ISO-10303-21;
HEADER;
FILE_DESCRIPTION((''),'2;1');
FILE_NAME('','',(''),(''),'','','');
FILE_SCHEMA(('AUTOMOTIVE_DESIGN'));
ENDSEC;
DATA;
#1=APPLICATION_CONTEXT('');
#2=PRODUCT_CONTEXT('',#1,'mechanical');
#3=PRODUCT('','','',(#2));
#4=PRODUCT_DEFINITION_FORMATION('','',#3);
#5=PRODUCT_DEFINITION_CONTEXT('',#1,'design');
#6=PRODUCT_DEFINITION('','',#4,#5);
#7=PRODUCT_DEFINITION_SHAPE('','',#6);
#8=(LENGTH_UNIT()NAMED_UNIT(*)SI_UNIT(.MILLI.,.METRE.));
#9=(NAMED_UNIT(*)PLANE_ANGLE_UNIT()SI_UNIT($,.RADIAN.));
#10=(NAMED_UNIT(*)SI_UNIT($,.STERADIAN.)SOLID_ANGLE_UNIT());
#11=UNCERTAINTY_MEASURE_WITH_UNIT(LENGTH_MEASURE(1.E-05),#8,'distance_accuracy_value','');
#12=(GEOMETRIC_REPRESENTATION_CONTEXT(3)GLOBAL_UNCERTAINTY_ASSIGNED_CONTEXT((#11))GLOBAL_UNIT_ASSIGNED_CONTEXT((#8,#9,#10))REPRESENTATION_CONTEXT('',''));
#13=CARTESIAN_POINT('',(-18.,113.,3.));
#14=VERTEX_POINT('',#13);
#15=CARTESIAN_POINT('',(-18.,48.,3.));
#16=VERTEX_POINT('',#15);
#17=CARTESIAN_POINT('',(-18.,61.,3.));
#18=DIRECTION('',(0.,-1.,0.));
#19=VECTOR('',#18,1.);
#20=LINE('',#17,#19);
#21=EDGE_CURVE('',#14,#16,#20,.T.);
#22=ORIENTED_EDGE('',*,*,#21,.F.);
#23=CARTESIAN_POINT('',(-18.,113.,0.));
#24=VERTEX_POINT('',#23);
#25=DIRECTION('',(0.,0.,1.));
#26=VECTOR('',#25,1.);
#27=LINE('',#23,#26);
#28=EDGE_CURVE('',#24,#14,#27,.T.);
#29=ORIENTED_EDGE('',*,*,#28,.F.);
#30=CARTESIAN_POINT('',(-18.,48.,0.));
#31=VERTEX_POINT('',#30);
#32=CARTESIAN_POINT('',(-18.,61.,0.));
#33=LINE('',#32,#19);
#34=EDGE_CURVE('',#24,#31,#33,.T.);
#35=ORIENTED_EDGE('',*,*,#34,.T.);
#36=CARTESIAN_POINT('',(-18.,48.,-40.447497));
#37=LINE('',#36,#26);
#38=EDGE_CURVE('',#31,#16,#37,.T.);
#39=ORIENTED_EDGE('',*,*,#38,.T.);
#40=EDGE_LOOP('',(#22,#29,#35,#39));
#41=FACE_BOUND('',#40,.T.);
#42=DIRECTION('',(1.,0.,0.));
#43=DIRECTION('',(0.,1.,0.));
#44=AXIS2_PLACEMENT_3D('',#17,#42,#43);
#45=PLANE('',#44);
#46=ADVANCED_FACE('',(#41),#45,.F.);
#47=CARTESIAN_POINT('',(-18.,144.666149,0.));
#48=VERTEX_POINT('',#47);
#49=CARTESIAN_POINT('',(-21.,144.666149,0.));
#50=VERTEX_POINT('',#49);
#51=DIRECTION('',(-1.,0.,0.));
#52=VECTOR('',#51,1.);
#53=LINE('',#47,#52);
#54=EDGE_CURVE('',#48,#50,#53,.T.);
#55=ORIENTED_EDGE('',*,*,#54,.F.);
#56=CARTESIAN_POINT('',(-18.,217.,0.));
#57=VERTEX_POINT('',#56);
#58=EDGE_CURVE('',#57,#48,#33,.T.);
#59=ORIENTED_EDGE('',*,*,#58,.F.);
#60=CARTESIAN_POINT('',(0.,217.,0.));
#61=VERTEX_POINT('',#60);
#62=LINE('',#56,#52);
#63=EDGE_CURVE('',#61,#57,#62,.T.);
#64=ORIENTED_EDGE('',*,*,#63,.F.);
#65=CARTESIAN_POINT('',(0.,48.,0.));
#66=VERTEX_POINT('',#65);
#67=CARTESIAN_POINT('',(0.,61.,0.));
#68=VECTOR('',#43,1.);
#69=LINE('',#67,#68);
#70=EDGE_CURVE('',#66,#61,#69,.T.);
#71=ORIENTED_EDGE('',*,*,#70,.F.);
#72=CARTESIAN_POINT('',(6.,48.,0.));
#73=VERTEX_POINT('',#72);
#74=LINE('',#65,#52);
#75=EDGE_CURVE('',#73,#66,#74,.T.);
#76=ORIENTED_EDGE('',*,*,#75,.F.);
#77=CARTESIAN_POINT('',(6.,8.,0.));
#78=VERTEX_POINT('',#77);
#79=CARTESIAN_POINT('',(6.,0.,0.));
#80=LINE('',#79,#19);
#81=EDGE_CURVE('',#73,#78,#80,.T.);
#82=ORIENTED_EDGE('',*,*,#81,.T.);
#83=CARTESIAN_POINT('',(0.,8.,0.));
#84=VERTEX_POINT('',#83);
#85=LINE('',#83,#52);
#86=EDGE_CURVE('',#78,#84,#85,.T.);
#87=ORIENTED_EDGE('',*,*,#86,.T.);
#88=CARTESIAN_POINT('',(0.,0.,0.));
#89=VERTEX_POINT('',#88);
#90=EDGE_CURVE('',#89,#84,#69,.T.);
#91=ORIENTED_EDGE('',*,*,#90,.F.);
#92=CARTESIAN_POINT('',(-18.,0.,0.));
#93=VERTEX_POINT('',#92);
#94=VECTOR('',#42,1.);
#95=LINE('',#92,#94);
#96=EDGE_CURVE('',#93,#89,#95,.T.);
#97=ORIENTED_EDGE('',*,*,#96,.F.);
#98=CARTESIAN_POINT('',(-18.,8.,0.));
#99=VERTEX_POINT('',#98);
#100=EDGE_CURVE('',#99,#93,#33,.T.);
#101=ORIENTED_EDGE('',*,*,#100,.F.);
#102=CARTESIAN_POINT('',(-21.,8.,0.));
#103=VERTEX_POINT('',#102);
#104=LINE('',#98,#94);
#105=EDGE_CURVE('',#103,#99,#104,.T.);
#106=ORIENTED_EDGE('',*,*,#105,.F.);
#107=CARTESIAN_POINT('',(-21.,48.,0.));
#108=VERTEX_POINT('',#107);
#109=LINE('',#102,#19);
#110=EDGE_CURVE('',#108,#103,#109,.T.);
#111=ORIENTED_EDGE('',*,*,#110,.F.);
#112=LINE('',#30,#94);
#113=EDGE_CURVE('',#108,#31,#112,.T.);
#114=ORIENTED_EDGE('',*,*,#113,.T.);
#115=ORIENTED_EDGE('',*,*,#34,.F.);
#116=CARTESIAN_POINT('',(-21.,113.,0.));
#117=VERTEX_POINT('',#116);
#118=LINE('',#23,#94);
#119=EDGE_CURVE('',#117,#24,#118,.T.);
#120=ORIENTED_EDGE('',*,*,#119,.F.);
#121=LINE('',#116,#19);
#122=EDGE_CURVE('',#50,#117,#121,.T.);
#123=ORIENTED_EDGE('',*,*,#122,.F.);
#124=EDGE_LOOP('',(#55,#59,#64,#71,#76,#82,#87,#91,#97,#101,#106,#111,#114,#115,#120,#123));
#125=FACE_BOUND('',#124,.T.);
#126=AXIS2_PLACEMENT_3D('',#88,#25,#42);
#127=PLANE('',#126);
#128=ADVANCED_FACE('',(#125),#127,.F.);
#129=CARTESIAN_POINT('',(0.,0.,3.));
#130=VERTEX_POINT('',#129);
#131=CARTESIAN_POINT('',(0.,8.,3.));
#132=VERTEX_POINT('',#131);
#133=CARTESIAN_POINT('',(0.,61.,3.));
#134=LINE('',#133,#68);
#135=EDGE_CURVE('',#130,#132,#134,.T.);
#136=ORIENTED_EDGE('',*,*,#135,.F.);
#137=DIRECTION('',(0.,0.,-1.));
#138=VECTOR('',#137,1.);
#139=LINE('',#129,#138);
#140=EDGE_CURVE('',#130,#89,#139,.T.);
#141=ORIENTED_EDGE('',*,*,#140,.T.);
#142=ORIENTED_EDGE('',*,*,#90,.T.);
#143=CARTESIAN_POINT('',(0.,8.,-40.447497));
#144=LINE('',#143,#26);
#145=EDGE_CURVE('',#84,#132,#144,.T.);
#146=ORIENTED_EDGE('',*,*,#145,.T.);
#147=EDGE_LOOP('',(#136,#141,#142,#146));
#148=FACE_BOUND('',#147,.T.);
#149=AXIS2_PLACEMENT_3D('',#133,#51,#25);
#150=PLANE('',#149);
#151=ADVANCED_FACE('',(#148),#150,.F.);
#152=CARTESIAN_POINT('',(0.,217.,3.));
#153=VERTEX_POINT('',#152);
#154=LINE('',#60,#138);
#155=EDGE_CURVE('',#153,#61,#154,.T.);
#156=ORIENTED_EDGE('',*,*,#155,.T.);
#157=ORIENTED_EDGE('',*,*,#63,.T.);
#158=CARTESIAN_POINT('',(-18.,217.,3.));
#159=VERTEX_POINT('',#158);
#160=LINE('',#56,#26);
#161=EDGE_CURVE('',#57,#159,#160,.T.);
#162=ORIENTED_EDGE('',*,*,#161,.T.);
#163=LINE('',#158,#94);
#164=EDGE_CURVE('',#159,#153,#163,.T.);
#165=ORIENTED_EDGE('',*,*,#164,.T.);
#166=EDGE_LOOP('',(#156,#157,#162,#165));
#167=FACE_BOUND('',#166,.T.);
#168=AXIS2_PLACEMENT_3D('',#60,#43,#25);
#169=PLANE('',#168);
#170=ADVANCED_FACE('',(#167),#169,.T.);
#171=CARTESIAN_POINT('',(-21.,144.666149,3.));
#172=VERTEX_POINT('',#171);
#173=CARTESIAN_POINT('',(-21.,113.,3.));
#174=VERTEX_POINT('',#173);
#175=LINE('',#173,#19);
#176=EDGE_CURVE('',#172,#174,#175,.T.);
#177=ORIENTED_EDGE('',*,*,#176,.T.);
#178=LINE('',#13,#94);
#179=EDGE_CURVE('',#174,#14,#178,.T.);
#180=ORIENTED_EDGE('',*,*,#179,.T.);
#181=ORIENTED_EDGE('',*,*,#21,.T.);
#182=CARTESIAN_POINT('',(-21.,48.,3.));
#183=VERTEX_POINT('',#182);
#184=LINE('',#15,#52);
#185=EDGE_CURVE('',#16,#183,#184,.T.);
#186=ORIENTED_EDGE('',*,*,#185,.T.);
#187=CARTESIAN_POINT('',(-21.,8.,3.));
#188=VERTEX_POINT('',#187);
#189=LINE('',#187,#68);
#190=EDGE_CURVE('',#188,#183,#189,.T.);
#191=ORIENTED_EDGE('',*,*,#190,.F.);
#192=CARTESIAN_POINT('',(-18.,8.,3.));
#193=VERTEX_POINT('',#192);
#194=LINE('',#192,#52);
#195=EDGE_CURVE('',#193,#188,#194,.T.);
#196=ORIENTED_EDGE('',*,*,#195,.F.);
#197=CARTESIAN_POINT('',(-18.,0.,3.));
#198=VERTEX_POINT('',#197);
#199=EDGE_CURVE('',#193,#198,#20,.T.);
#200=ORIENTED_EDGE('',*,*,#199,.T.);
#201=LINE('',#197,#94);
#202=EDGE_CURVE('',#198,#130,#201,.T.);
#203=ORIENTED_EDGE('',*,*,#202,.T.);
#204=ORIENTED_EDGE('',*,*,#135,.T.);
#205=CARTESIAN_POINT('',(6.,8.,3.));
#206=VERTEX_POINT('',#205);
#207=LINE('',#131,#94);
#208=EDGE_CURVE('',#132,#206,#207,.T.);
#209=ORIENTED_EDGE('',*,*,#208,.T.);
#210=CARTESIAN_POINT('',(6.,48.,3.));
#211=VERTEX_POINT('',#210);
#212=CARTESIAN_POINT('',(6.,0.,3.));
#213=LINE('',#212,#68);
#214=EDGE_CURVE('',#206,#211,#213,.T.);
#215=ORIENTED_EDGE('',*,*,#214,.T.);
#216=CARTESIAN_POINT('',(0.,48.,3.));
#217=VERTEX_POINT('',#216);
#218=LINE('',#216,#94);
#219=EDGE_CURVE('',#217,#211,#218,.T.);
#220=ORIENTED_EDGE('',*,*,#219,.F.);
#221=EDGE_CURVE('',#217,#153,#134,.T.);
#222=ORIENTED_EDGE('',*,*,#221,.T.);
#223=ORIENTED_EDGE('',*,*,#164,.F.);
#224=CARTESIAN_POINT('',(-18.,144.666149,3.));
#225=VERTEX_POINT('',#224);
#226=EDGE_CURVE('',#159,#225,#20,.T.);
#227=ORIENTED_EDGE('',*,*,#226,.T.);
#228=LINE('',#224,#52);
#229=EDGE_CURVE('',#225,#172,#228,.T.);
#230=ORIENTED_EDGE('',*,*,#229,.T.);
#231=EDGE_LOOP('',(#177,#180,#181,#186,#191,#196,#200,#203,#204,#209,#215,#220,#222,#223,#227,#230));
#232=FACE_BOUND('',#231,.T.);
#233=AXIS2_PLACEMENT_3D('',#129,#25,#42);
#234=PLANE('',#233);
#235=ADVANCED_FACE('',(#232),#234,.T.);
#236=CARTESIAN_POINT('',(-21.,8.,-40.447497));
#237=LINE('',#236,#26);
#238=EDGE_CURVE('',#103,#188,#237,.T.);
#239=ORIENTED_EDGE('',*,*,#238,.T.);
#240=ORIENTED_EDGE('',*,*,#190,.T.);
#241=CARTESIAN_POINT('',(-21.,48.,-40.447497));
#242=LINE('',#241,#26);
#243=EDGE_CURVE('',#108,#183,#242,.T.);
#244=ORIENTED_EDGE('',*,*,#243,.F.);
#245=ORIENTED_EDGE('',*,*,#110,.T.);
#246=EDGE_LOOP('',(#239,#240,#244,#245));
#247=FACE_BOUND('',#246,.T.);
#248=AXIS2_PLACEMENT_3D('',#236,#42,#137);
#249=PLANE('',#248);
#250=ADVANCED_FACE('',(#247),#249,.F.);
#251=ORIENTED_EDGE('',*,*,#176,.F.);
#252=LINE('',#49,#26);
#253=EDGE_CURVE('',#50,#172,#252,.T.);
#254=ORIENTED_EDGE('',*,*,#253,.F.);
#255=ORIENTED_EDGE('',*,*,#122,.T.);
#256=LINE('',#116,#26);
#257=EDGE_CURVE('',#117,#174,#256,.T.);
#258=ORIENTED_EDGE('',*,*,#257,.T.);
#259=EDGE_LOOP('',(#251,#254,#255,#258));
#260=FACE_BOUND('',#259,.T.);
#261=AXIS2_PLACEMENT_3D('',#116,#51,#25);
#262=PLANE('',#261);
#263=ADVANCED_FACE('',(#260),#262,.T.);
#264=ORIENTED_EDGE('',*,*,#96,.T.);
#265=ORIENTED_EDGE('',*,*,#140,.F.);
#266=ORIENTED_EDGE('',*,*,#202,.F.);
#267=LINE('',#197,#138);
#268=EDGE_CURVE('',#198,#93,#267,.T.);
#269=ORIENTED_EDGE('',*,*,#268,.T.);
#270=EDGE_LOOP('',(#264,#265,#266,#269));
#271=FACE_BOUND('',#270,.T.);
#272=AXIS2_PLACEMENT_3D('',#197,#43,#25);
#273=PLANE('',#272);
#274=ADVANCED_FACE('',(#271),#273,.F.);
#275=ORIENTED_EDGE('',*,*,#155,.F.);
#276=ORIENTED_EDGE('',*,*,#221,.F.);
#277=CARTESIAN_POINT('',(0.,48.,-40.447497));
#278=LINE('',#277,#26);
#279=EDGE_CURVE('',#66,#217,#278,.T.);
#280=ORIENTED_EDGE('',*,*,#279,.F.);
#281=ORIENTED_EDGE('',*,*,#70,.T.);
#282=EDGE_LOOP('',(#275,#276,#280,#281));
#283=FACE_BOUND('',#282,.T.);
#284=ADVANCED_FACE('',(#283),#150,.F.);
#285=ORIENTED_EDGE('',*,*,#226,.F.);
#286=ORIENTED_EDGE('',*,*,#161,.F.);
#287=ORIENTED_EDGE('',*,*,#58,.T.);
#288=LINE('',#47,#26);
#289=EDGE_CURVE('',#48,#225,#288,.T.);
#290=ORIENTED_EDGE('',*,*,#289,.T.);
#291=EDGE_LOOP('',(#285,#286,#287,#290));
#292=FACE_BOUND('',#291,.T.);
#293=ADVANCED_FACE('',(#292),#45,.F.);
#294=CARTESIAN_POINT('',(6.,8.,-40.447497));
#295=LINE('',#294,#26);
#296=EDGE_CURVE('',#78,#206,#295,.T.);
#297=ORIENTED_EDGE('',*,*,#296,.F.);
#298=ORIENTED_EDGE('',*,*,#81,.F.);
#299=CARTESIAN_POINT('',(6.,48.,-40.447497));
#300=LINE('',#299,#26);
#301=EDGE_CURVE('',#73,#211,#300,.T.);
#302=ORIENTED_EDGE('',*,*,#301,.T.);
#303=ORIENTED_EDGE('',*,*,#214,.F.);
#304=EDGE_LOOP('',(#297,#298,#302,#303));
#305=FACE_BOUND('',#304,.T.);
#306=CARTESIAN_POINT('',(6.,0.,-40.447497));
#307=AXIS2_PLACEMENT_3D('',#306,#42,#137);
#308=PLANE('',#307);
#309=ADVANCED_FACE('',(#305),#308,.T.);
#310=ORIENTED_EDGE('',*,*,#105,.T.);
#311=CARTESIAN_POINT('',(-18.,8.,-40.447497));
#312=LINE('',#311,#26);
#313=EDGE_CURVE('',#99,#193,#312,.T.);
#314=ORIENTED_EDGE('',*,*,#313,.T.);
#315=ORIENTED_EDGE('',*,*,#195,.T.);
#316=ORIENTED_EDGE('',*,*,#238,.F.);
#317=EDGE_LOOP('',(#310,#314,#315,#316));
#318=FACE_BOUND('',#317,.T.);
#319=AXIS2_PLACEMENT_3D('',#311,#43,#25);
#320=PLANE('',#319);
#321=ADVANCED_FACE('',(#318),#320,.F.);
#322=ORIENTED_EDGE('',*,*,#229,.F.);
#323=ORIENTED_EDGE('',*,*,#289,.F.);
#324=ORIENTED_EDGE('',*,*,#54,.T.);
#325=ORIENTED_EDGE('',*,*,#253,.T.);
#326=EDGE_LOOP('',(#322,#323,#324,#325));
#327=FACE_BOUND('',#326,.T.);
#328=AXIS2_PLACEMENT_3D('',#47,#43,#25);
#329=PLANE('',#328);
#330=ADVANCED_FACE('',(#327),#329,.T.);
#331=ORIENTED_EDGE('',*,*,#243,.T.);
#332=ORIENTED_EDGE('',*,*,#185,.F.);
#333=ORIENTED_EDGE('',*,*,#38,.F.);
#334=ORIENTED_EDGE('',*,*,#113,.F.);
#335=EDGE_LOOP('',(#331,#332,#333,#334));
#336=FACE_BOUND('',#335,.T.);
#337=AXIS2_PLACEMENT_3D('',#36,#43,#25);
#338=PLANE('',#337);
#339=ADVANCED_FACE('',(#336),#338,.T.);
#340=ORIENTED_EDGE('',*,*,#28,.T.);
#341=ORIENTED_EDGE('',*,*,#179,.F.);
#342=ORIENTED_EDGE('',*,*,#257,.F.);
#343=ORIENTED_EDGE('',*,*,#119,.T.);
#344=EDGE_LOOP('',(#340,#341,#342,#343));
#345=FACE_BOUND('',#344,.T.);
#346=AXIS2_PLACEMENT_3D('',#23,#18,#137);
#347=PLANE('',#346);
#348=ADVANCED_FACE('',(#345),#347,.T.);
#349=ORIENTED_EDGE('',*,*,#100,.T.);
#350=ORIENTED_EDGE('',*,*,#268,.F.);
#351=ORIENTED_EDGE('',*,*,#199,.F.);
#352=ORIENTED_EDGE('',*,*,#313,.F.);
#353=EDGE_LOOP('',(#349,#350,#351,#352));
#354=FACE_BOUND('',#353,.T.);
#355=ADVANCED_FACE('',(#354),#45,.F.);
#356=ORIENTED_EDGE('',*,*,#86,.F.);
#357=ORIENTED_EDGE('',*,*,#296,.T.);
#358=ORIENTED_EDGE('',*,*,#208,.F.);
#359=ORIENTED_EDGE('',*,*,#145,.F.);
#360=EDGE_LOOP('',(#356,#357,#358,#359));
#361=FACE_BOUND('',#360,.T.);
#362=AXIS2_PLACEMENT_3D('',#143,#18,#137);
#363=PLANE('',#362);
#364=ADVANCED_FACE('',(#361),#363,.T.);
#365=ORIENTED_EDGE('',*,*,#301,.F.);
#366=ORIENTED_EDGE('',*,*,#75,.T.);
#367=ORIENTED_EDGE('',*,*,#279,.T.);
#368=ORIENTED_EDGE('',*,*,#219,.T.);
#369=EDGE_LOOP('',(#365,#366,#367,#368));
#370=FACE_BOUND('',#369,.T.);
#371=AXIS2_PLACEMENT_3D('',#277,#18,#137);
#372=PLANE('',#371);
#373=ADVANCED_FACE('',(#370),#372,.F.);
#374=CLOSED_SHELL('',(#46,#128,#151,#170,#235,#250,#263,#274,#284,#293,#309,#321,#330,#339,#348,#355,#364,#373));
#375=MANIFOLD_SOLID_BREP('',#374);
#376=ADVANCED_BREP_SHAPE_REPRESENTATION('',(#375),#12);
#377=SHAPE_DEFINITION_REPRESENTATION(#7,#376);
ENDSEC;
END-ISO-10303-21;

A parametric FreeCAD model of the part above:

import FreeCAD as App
import Part
import Sketcher

V = App.Vector
Q = App.Units.Quantity

doc = App.newDocument("Part")
body = doc.addObject("PartDesign::Body", "Body")

# Sketch on XY plane
sketch1 = body.newObject("Sketcher::SketchObject", "Sketch")
sketch1.AttachmentSupport = (doc.getObject("XY_Plane"), [""])
sketch1.MapMode = "FlatFace"
sketch1.addGeometry([
    Part.LineSegment(V(-18, 61, 0), V(-18, 0, 0)),
    Part.LineSegment(V(-18, 0, 0), V(0, 0, 0)),
    Part.LineSegment(V(0, 0, 0), V(0, 61, 0)),
    Part.LineSegment(V(0, 61, 0), V(-18, 61, 0)),
], False)
sketch1.addConstraint([
    Sketcher.Constraint("Coincident", 0, 2, 1, 1),
    Sketcher.Constraint("Coincident", 1, 2, 2, 1),
    Sketcher.Constraint("Coincident", 2, 2, 3, 1),
    Sketcher.Constraint("Coincident", 3, 2, 0, 1),
    Sketcher.Constraint("Vertical", 0),
    Sketcher.Constraint("Horizontal", 1),
    Sketcher.Constraint("Vertical", 2),
    Sketcher.Constraint("Horizontal", 3),
    Sketcher.Constraint("Coincident", 1, 2, -1, 1),
    Sketcher.Constraint("DistanceX", 1, 1, 1, 2, Q("18 mm")),
    Sketcher.Constraint("DistanceY", 0, 2, 0, 1, Q("61 mm")),
])
pad1 = body.newObject("PartDesign::Pad", "Pad")
pad1.Profile = sketch1
pad1.Length = 3

# Sketch on XY plane
sketch2 = body.newObject("Sketcher::SketchObject", "Sketch001")
sketch2.AttachmentSupport = (doc.getObject("XY_Plane"), [""])
sketch2.MapMode = "FlatFace"
sketch2.AttachmentOffset = App.Placement(V(0, 0, 3), App.Rotation())
sketch2.addGeometry([
    Part.LineSegment(V(0, 48, 0), V(0, 8, 0)),  # 0
    Part.LineSegment(V(0, 8, 0), V(6, 8, 0)),  # 1
    Part.LineSegment(V(6, 8, 0), V(6, 48, 0)),  # 2
    Part.LineSegment(V(6, 48, 0), V(0, 48, 0)),  # 3
    Part.LineSegment(V(-21, 48, 0), V(-21, 8, 0)),  # 4
    Part.LineSegment(V(-21, 8, 0), V(-18, 8, 0)),  # 5
    Part.LineSegment(V(-18, 8, 0), V(-18, 48, 0)),  # 6
    Part.LineSegment(V(-18, 48, 0), V(-21, 48, 0)),  # 7
], False)
sketch2.addConstraint([
    Sketcher.Constraint("Coincident", 0, 2, 1, 1),
    Sketcher.Constraint("Coincident", 1, 2, 2, 1),
    Sketcher.Constraint("Coincident", 2, 2, 3, 1),
    Sketcher.Constraint("Coincident", 3, 2, 0, 1),
    Sketcher.Constraint("Coincident", 4, 2, 5, 1),
    Sketcher.Constraint("Coincident", 5, 2, 6, 1),
    Sketcher.Constraint("Coincident", 6, 2, 7, 1),
    Sketcher.Constraint("Coincident", 7, 2, 4, 1),
    Sketcher.Constraint("Vertical", 0),
    Sketcher.Constraint("Horizontal", 1),
    Sketcher.Constraint("Vertical", 2),
    Sketcher.Constraint("Horizontal", 3),
    Sketcher.Constraint("Vertical", 4),
    Sketcher.Constraint("Horizontal", 5),
    Sketcher.Constraint("Vertical", 6),
    Sketcher.Constraint("Horizontal", 7),
    Sketcher.Constraint("PointOnObject", 0, 2, -2),
    Sketcher.Constraint("Horizontal", 1, 2, 4, 2),
    Sketcher.Constraint("Horizontal", 3, 2, 6, 2),
    Sketcher.Constraint("DistanceX", 1, 1, 1, 2, Q("6 mm")),
    Sketcher.Constraint("DistanceX", 5, 1, 5, 2, Q("3 mm")),
    Sketcher.Constraint("DistanceY", 0, 2, 0, 1, Q("40 mm")),
    Sketcher.Constraint("DistanceY", -1, 1, 0, 2, Q("8 mm")),
    Sketcher.Constraint("DistanceX", 4, 2, -1, 1, Q("21 mm")),
])
pad2 = body.newObject("PartDesign::Pad", "Pad001")
pad2.Profile = sketch2
pad2.Length = 3
pad2.Reversed = True

# Sketch on XZ plane
sketch3 = body.newObject("Sketcher::SketchObject", "Sketch002")
sketch3.AttachmentSupport = (doc.getObject("XZ_Plane"), [""])
sketch3.MapMode = "FlatFace"
sketch3.AttachmentOffset = App.Placement(V(0, 0, -61), App.Rotation())
sketch3.addGeometry([
    Part.LineSegment(V(-18, 0, 0), V(-18, 3, 0)),
    Part.LineSegment(V(-18, 3, 0), V(0, 3, 0)),
    Part.LineSegment(V(0, 3, 0), V(0, 0, 0)),
    Part.LineSegment(V(0, 0, 0), V(-18, 0, 0)),
], False)
sketch3.addConstraint([
    Sketcher.Constraint("Coincident", 0, 2, 1, 1),
    Sketcher.Constraint("Coincident", 1, 2, 2, 1),
    Sketcher.Constraint("Coincident", 2, 2, 3, 1),
    Sketcher.Constraint("Coincident", 3, 2, 0, 1),
    Sketcher.Constraint("Vertical", 0),
    Sketcher.Constraint("Horizontal", 1),
    Sketcher.Constraint("Vertical", 2),
    Sketcher.Constraint("Horizontal", 3),
    Sketcher.Constraint("Coincident", 2, 2, -1, 1),
    Sketcher.Constraint("DistanceX", 1, 1, 1, 2, Q("18 mm")),
    Sketcher.Constraint("DistanceY", 0, 1, 0, 2, Q("3 mm")),
])
pad3 = body.newObject("PartDesign::Pad", "Pad002")
pad3.Profile = sketch3
pad3.Length = 156
pad3.Reversed = True

# Sketch on XY plane
sketch4 = body.newObject("Sketcher::SketchObject", "Sketch003")
sketch4.AttachmentSupport = (doc.getObject("XY_Plane"), [""])
sketch4.MapMode = "FlatFace"
sketch4.AttachmentOffset = App.Placement(V(0, 0, 3), App.Rotation())
sketch4.addGeometry([
    Part.LineSegment(V(-21, 144.7, 0), V(-21, 113, 0)),
    Part.LineSegment(V(-21, 113, 0), V(-18, 113, 0)),
    Part.LineSegment(V(-18, 113, 0), V(-18, 144.7, 0)),
    Part.LineSegment(V(-18, 144.7, 0), V(-21, 144.7, 0)),
], False)
sketch4.addConstraint([
    Sketcher.Constraint("Coincident", 0, 2, 1, 1),
    Sketcher.Constraint("Coincident", 1, 2, 2, 1),
    Sketcher.Constraint("Coincident", 2, 2, 3, 1),
    Sketcher.Constraint("Coincident", 3, 2, 0, 1),
    Sketcher.Constraint("Vertical", 0),
    Sketcher.Constraint("Horizontal", 1),
    Sketcher.Constraint("Vertical", 2),
    Sketcher.Constraint("Horizontal", 3),
    Sketcher.Constraint("DistanceX", 1, 1, 1, 2, Q("3 mm")),
    Sketcher.Constraint("DistanceX", 0, 2, -1, 1, Q("21 mm")),
    Sketcher.Constraint("DistanceY", -1, 1, 0, 2, Q("113 mm")),
    Sketcher.Constraint("DistanceY", 0, 2, 0, 1, Q("31.666149 mm")),
])
pad4 = body.newObject("PartDesign::Pad", "Pad003")
pad4.Profile = sketch4
pad4.Length = 3
pad4.Reversed = True

doc.recompute()
